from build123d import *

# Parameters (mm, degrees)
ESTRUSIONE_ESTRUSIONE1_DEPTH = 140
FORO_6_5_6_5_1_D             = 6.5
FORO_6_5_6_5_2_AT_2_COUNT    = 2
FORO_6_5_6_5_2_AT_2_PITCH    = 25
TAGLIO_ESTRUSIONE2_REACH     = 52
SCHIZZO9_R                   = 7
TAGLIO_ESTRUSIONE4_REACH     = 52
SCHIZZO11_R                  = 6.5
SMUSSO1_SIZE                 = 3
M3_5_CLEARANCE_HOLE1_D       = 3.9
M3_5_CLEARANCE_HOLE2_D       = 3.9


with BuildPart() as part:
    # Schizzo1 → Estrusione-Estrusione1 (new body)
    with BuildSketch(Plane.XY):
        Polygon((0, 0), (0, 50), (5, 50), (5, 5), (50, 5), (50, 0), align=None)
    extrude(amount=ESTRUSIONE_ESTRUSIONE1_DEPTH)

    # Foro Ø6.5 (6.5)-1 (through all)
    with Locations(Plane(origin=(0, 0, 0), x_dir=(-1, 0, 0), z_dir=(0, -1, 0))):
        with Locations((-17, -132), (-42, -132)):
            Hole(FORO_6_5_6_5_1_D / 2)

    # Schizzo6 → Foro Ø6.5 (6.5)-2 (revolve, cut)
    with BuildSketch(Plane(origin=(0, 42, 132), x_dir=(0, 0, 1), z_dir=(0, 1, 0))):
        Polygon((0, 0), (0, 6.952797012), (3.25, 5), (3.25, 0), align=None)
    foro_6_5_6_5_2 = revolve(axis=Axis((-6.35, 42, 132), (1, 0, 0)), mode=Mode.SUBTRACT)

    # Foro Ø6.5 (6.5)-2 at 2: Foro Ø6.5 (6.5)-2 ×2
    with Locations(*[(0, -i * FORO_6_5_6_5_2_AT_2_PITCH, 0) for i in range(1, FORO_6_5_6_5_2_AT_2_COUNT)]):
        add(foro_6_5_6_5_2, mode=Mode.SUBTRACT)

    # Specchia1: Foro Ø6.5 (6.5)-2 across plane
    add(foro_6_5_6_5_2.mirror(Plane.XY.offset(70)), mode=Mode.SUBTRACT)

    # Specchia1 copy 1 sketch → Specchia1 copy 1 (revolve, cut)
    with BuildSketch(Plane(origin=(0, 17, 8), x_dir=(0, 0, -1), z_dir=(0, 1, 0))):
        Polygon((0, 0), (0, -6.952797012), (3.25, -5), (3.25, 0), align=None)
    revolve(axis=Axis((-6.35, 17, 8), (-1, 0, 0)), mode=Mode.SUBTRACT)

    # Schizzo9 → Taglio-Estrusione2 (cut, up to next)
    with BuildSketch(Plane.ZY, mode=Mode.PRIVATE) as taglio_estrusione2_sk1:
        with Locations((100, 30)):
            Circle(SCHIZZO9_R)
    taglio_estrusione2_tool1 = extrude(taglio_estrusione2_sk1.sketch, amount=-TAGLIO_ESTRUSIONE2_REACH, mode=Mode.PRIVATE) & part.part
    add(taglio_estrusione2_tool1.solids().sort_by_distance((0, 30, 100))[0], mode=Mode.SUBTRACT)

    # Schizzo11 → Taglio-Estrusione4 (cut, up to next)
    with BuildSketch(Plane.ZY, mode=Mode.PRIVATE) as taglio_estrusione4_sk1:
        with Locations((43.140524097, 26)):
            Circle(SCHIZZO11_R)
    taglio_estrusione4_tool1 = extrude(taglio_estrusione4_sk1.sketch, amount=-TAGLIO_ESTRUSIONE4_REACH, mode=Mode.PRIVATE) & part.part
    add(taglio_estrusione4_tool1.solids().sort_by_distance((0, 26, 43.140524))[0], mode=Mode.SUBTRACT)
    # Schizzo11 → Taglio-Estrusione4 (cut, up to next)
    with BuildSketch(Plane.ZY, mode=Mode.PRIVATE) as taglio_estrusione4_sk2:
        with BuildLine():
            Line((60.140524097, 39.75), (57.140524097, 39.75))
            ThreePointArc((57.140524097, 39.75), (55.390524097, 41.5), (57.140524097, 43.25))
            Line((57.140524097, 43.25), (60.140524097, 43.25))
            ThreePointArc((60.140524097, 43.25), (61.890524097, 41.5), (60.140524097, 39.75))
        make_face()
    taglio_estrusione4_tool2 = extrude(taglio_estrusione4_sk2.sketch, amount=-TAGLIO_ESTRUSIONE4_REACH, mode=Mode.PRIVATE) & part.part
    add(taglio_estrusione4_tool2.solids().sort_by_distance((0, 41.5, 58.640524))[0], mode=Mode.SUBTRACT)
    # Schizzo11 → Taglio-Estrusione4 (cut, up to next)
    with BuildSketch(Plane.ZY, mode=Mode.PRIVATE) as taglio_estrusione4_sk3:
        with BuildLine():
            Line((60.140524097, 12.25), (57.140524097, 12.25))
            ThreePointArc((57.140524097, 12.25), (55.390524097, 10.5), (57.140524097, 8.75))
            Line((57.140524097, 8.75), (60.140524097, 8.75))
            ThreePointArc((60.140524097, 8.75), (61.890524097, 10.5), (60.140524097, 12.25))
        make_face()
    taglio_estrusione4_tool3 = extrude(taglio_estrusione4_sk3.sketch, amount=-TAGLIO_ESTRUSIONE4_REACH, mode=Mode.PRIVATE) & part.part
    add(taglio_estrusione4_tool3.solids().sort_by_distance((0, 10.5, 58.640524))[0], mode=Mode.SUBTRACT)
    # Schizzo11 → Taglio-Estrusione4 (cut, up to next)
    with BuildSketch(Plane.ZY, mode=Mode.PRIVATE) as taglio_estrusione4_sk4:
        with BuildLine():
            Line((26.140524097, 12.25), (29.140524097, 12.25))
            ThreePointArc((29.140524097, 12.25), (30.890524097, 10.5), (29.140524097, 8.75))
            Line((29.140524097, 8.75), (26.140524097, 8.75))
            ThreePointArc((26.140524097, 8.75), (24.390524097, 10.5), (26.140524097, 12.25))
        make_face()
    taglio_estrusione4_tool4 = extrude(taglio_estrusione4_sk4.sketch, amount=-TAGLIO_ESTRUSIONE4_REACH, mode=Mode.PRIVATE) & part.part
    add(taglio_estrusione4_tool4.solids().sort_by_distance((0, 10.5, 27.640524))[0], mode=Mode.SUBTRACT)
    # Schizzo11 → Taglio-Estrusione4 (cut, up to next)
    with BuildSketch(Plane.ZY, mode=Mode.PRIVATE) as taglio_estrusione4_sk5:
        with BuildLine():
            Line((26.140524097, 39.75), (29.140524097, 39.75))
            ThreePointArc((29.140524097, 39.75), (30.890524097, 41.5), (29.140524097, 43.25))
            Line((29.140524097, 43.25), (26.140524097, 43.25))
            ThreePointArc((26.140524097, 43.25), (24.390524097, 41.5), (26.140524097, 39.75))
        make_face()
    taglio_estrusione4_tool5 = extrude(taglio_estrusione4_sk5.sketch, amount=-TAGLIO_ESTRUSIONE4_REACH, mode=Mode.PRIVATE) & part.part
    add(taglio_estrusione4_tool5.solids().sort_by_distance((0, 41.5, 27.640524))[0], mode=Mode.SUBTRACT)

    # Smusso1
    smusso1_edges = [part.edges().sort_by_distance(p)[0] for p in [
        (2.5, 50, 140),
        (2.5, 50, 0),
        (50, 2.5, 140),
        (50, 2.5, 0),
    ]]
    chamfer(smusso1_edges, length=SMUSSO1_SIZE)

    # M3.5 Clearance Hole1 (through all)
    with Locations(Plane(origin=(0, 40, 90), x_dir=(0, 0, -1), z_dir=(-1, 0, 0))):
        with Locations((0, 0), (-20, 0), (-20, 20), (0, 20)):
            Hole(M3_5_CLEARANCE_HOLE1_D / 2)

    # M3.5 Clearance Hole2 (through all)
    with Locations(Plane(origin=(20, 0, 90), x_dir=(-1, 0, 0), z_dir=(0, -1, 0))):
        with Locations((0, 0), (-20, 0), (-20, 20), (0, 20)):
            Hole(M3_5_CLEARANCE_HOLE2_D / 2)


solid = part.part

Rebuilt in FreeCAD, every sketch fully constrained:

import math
import FreeCAD as App
import Part
import Sketcher
Q = App.Units.Quantity


def edges_at(feature, points):
    """Names of the edges that pass closest to the given points."""
    edges = feature.Shape.Edges
    near = lambda p: min(range(len(edges)), key=lambda i: edges[i].distToShape(Part.Vertex(*p))[0])
    return sorted({f"Edge{near(p) + 1}" for p in points})

doc = App.newDocument("Part")
body = doc.addObject("PartDesign::Body", "Body")

sketch1 = body.newObject("Sketcher::SketchObject", "Sketch")
sketch1.AttachmentSupport = (doc.getObject("XY_Plane"), [""])
sketch1.MapMode = "FlatFace"
sketch1.addGeometry(Part.LineSegment(App.Vector(0, 50, 0), App.Vector(0, 0, 0)), False)
sketch1.addGeometry(Part.LineSegment(App.Vector(0, 0, 0), App.Vector(50, 0, 0)), False)
sketch1.addGeometry(Part.LineSegment(App.Vector(50, 0, 0), App.Vector(50, 5, 0)), False)
sketch1.addGeometry(Part.LineSegment(App.Vector(50, 5, 0), App.Vector(5, 5, 0)), False)
sketch1.addGeometry(Part.LineSegment(App.Vector(5, 5, 0), App.Vector(5, 50, 0)), False)
sketch1.addGeometry(Part.LineSegment(App.Vector(5, 50, 0), App.Vector(0, 50, 0)), False)
sketch1.addConstraint(Sketcher.Constraint("Coincident", 0, 2, 1, 1))
sketch1.addConstraint(Sketcher.Constraint("Coincident", 1, 2, 2, 1))
sketch1.addConstraint(Sketcher.Constraint("Coincident", 2, 2, 3, 1))
sketch1.addConstraint(Sketcher.Constraint("Coincident", 3, 2, 4, 1))
sketch1.addConstraint(Sketcher.Constraint("Coincident", 4, 2, 5, 1))
sketch1.addConstraint(Sketcher.Constraint("Coincident", 5, 2, 0, 1))
sketch1.addConstraint(Sketcher.Constraint("Vertical", 0))
sketch1.addConstraint(Sketcher.Constraint("Horizontal", 1))
sketch1.addConstraint(Sketcher.Constraint("Vertical", 2))
sketch1.addConstraint(Sketcher.Constraint("Horizontal", 3))
sketch1.addConstraint(Sketcher.Constraint("Vertical", 4))
sketch1.addConstraint(Sketcher.Constraint("Horizontal", 5))
sketch1.addConstraint(Sketcher.Constraint("Coincident", 0, 2, -1, 1))
sketch1.addConstraint(Sketcher.Constraint("Equal", 1, 0))
sketch1.addConstraint(Sketcher.Constraint("Equal", 5, 2))
sketch1.addConstraint(Sketcher.Constraint("DistanceX", 1, 1, 1, 2, Q("50 mm")))
sketch1.addConstraint(Sketcher.Constraint("DistanceX", 3, 2, 3, 1, Q("45 mm")))
pad1 = body.newObject("PartDesign::Pad", "Pad")
pad1.Profile = sketch1
pad1.Length = 140

sketch2 = body.newObject("Sketcher::SketchObject", "Sketch001")
sketch2.AttachmentSupport = (doc.getObject("XZ_Plane"), [""])
sketch2.MapMode = "FlatFace"
sketch2.addGeometry(Part.Circle(App.Vector(17, 132, 0), App.Vector(0, 0, 1), 3.2), False)
sketch2.addGeometry(Part.Circle(App.Vector(42, 132, 0), App.Vector(0, 0, 1), 3.2), False)
sketch2.addConstraint(Sketcher.Constraint("Equal", 0, 1))
sketch2.addConstraint(Sketcher.Constraint("Horizontal", 0, 3, 1, 3))
sketch2.addConstraint(Sketcher.Constraint("Diameter", 0, Q("6.5 mm")))
sketch2.addConstraint(Sketcher.Constraint("DistanceX", -1, 1, 0, 3, Q("17 mm")))
sketch2.addConstraint(Sketcher.Constraint("DistanceY", -1, 1, 0, 3, Q("132 mm")))
sketch2.addConstraint(Sketcher.Constraint("DistanceX", -1, 1, 1, 3, Q("42 mm")))
doc.recompute()
hole = body.newObject("PartDesign::Hole", "Hole")
hole.Profile = sketch2
hole.ThreadType = "None"
hole.Diameter = 6.5
hole.DepthType = "ThroughAll"

sketch3 = body.newObject("Sketcher::SketchObject", "Sketch002")
sketch3.AttachmentSupport = (doc.getObject("XZ_Plane"), [""])
sketch3.MapMode = "FlatFace"
sketch3.AttachmentOffset = App.Placement(App.Vector(0, 0, -42), App.Rotation())
sketch3.addGeometry(Part.LineSegment(App.Vector(7, 132, 0), App.Vector(0, 132, 0)), False)
sketch3.addGeometry(Part.LineSegment(App.Vector(0, 132, 0), App.Vector(0, 135.2, 0)), False)
sketch3.addGeometry(Part.LineSegment(App.Vector(0, 135.2, 0), App.Vector(5, 135.2, 0)), False)
sketch3.addGeometry(Part.LineSegment(App.Vector(5, 135.2, 0), App.Vector(7, 132, 0)), False)
sketch3.addGeometry(Part.LineSegment(App.Vector(0, 132, 0), App.Vector(7, 132, 0)), True)
sketch3.addConstraint(Sketcher.Constraint("Coincident", 0, 2, 1, 1))
sketch3.addConstraint(Sketcher.Constraint("Coincident", 1, 2, 2, 1))
sketch3.addConstraint(Sketcher.Constraint("Coincident", 2, 2, 3, 1))
sketch3.addConstraint(Sketcher.Constraint("Coincident", 3, 2, 0, 1))
sketch3.addConstraint(Sketcher.Constraint("Horizontal", 0))
sketch3.addConstraint(Sketcher.Constraint("Vertical", 1))
sketch3.addConstraint(Sketcher.Constraint("Horizontal", 2))
sketch3.addConstraint(Sketcher.Constraint("Horizontal", 4))
sketch3.addConstraint(Sketcher.Constraint("Coincident", 4, 1, 0, 2))
sketch3.addConstraint(Sketcher.Constraint("PointOnObject", 0, 2, -2))
sketch3.addConstraint(Sketcher.Constraint("Equal", 0, 4))
sketch3.addConstraint(Sketcher.Constraint("DistanceX", 2, 1, 2, 2, Q("5 mm")))
sketch3.addConstraint(Sketcher.Constraint("Angle", 3, Q("-59 deg")))
sketch3.addConstraint(Sketcher.Constraint("DistanceY", -1, 1, 0, 2, Q("132 mm")))
sketch3.addConstraint(Sketcher.Constraint("DistanceY", 1, 1, 1, 2, Q("3.25 mm")))
groove = body.newObject("PartDesign::Groove", "Groove")
groove.Profile = sketch3
groove.ReferenceAxis = (sketch3, ["Axis0"])
groove.Angle = 360
doc.recompute()

linearpattern = body.newObject("PartDesign::LinearPattern", "LinearPattern")
linearpattern.Originals = [groove]
linearpattern.Direction = (doc.getObject("Y_Axis"), [""])
linearpattern.Mode = "offset"
linearpattern.Offset = 25
linearpattern.Occurrences = 2
linearpattern.Reversed = True
body.Tip = linearpattern
doc.recompute()

datumplane = body.newObject("PartDesign::Plane", "DatumPlane")
datumplane.AttachmentSupport = (doc.getObject("XY_Plane"), [""])
datumplane.MapMode = "FlatFace"
datumplane.AttachmentOffset = App.Placement(App.Vector(0, 0, 70), App.Rotation())
mirrored = body.newObject("PartDesign::Mirrored", "Mirrored")
mirrored.Originals = [groove]
mirrored.MirrorPlane = (datumplane, [""])
body.Tip = mirrored

sketch4 = body.newObject("Sketcher::SketchObject", "Sketch003")
sketch4.AttachmentSupport = (doc.getObject("XZ_Plane"), [""])
sketch4.MapMode = "FlatFace"
sketch4.AttachmentOffset = App.Placement(App.Vector(0, 0, -17), App.Rotation())
sketch4.addGeometry(Part.LineSegment(App.Vector(0, 8, 0), App.Vector(7, 8, 0)), False)
sketch4.addGeometry(Part.LineSegment(App.Vector(7, 8, 0), App.Vector(5, 4.8, 0)), False)
sketch4.addGeometry(Part.LineSegment(App.Vector(5, 4.8, 0), App.Vector(0, 4.8, 0)), False)
sketch4.addGeometry(Part.LineSegment(App.Vector(0, 4.8, 0), App.Vector(0, 8, 0)), False)
sketch4.addGeometry(Part.LineSegment(App.Vector(7, 8, 0), App.Vector(0, 8, 0)), True)
sketch4.addConstraint(Sketcher.Constraint("Coincident", 0, 2, 1, 1))
sketch4.addConstraint(Sketcher.Constraint("Coincident", 1, 2, 2, 1))
sketch4.addConstraint(Sketcher.Constraint("Coincident", 2, 2, 3, 1))
sketch4.addConstraint(Sketcher.Constraint("Coincident", 3, 2, 0, 1))
sketch4.addConstraint(Sketcher.Constraint("Horizontal", 0))
sketch4.addConstraint(Sketcher.Constraint("Horizontal", 2))
sketch4.addConstraint(Sketcher.Constraint("Vertical", 3))
sketch4.addConstraint(Sketcher.Constraint("Horizontal", 4))
sketch4.addConstraint(Sketcher.Constraint("Coincident", 4, 1, 0, 2))
sketch4.addConstraint(Sketcher.Constraint("PointOnObject", 2, 2, -2))
sketch4.addConstraint(Sketcher.Constraint("PointOnObject", 4, 2, -2))
sketch4.addConstraint(Sketcher.Constraint("DistanceX", 2, 2, 2, 1, Q("5 mm")))
sketch4.addConstraint(Sketcher.Constraint("Angle", 1, Q("-121 deg")))
sketch4.addConstraint(Sketcher.Constraint("DistanceY", -1, 1, 0, 2, Q("8 mm")))
sketch4.addConstraint(Sketcher.Constraint("DistanceY", 3, 1, 3, 2, Q("3.25 mm")))
groove2 = body.newObject("PartDesign::Groove", "Groove001")
groove2.Profile = sketch4
groove2.ReferenceAxis = (sketch4, ["Axis0"])
groove2.Angle = 360

sketch5 = body.newObject("Sketcher::SketchObject", "Sketch004")
sketch5.AttachmentSupport = (doc.getObject("YZ_Plane"), [""])
sketch5.MapMode = "FlatFace"
sketch5.addGeometry(Part.Circle(App.Vector(30, 100, 0), App.Vector(0, 0, 1), 7), False)
sketch5.addConstraint(Sketcher.Constraint("Diameter", 0, Q("14 mm")))
sketch5.addConstraint(Sketcher.Constraint("DistanceX", -1, 1, 0, 3, Q("30 mm")))
sketch5.addConstraint(Sketcher.Constraint("DistanceY", -1, 1, 0, 3, Q("100 mm")))
pocket1 = body.newObject("PartDesign::Pocket", "Pocket")
pocket1.Profile = sketch5
pocket1.Type = "UpToFirst"
pocket1.Reversed = True

sketch6 = body.newObject("Sketcher::SketchObject", "Sketch005")
sketch6.AttachmentSupport = (doc.getObject("YZ_Plane"), [""])
sketch6.MapMode = "FlatFace"
sketch6.addGeometry(Part.Circle(App.Vector(26, 43, 0), App.Vector(0, 0, 1), 6), False)
sketch6.addConstraint(Sketcher.Constraint("Diameter", 0, Q("13 mm")))
sketch6.addConstraint(Sketcher.Constraint("DistanceX", -1, 1, 0, 3, Q("26 mm")))
sketch6.addConstraint(Sketcher.Constraint("DistanceY", -1, 1, 0, 3, Q("43.140524 mm")))
pocket2 = body.newObject("PartDesign::Pocket", "Pocket001")
pocket2.Profile = sketch6
pocket2.Type = "UpToFirst"
pocket2.Reversed = True

sketch7 = body.newObject("Sketcher::SketchObject", "Sketch006")
sketch7.AttachmentSupport = (doc.getObject("YZ_Plane"), [""])
sketch7.MapMode = "FlatFace"
sketch7.addGeometry(Part.LineSegment(App.Vector(39.8, 57.1, 0), App.Vector(39.8, 60.1, 0)), False)
sketch7.addGeometry(Part.ArcOfCircle(Part.Circle(App.Vector(41.5, 60.1, 0), App.Vector(0, 0, 1), 1.8), math.radians(0), math.radians(180)), False)
sketch7.addGeometry(Part.LineSegment(App.Vector(43.2, 60.1, 0), App.Vector(43.2, 57.1, 0)), False)
sketch7.addGeometry(Part.ArcOfCircle(Part.Circle(App.Vector(41.5, 57.1, 0), App.Vector(0, 0, 1), 1.8), math.radians(180), math.radians(360)), False)
sketch7.addConstraint(Sketcher.Constraint("Tangent", 0, 2, 1, 2))
sketch7.addConstraint(Sketcher.Constraint("Tangent", 1, 1, 2, 1))
sketch7.addConstraint(Sketcher.Constraint("Tangent", 2, 2, 3, 2))
sketch7.addConstraint(Sketcher.Constraint("Tangent", 3, 1, 0, 1))
sketch7.addConstraint(Sketcher.Constraint("Vertical", 0))
sketch7.addConstraint(Sketcher.Constraint("Vertical", 2))
sketch7.addConstraint(Sketcher.Constraint("DistanceY", 0, 1, 0, 2, Q("3 mm")))
sketch7.addConstraint(Sketcher.Constraint("Radius", 1, Q("1.75 mm")))
sketch7.addConstraint(Sketcher.Constraint("DistanceX", -1, 1, 1, 3, Q("41.5 mm")))
sketch7.addConstraint(Sketcher.Constraint("DistanceY", -1, 1, 1, 3, Q("60.140524 mm")))
pocket3 = body.newObject("PartDesign::Pocket", "Pocket002")
pocket3.Profile = sketch7
pocket3.Type = "UpToFirst"
pocket3.Reversed = True

sketch8 = body.newObject("Sketcher::SketchObject", "Sketch007")
sketch8.AttachmentSupport = (doc.getObject("YZ_Plane"), [""])
sketch8.MapMode = "FlatFace"
sketch8.addGeometry(Part.LineSegment(App.Vector(12.2, 60.1, 0), App.Vector(12.2, 57.1, 0)), False)
sketch8.addGeometry(Part.ArcOfCircle(Part.Circle(App.Vector(10.5, 57.1, 0), App.Vector(0, 0, 1), 1.8), math.radians(180), math.radians(360)), False)
sketch8.addGeometry(Part.LineSegment(App.Vector(8.8, 57.1, 0), App.Vector(8.8, 60.1, 0)), False)
sketch8.addGeometry(Part.ArcOfCircle(Part.Circle(App.Vector(10.5, 60.1, 0), App.Vector(0, 0, 1), 1.8), math.radians(0), math.radians(180)), False)
sketch8.addConstraint(Sketcher.Constraint("Tangent", 0, 2, 1, 2))
sketch8.addConstraint(Sketcher.Constraint("Tangent", 1, 1, 2, 1))
sketch8.addConstraint(Sketcher.Constraint("Tangent", 2, 2, 3, 2))
sketch8.addConstraint(Sketcher.Constraint("Tangent", 3, 1, 0, 1))
sketch8.addConstraint(Sketcher.Constraint("Vertical", 0))
sketch8.addConstraint(Sketcher.Constraint("Vertical", 2))
sketch8.addConstraint(Sketcher.Constraint("DistanceY", 0, 2, 0, 1, Q("3 mm")))
sketch8.addConstraint(Sketcher.Constraint("Radius", 1, Q("1.75 mm")))
sketch8.addConstraint(Sketcher.Constraint("DistanceX", -1, 1, 1, 3, Q("10.5 mm")))
sketch8.addConstraint(Sketcher.Constraint("DistanceY", -1, 1, 1, 3, Q("57.140524 mm")))
pocket4 = body.newObject("PartDesign::Pocket", "Pocket003")
pocket4.Profile = sketch8
pocket4.Type = "UpToFirst"
pocket4.Reversed = True

sketch9 = body.newObject("Sketcher::SketchObject", "Sketch008")
sketch9.AttachmentSupport = (doc.getObject("YZ_Plane"), [""])
sketch9.MapMode = "FlatFace"
sketch9.addGeometry(Part.LineSegment(App.Vector(12.2, 29.1, 0), App.Vector(12.2, 26.1, 0)), False)
sketch9.addGeometry(Part.ArcOfCircle(Part.Circle(App.Vector(10.5, 26.1, 0), App.Vector(0, 0, 1), 1.8), math.radians(180), math.radians(360)), False)
sketch9.addGeometry(Part.LineSegment(App.Vector(8.8, 26.1, 0), App.Vector(8.8, 29.1, 0)), False)
sketch9.addGeometry(Part.ArcOfCircle(Part.Circle(App.Vector(10.5, 29.1, 0), App.Vector(0, 0, 1), 1.8), math.radians(0), math.radians(180)), False)
sketch9.addConstraint(Sketcher.Constraint("Tangent", 0, 2, 1, 2))
sketch9.addConstraint(Sketcher.Constraint("Tangent", 1, 1, 2, 1))
sketch9.addConstraint(Sketcher.Constraint("Tangent", 2, 2, 3, 2))
sketch9.addConstraint(Sketcher.Constraint("Tangent", 3, 1, 0, 1))
sketch9.addConstraint(Sketcher.Constraint("Vertical", 0))
sketch9.addConstraint(Sketcher.Constraint("Vertical", 2))
sketch9.addConstraint(Sketcher.Constraint("DistanceY", 0, 2, 0, 1, Q("3 mm")))
sketch9.addConstraint(Sketcher.Constraint("Radius", 1, Q("1.75 mm")))
sketch9.addConstraint(Sketcher.Constraint("DistanceX", -1, 1, 1, 3, Q("10.5 mm")))
sketch9.addConstraint(Sketcher.Constraint("DistanceY", -1, 1, 1, 3, Q("26.140524 mm")))
pocket5 = body.newObject("PartDesign::Pocket", "Pocket004")
pocket5.Profile = sketch9
pocket5.Type = "UpToFirst"
pocket5.Reversed = True

sketch10 = body.newObject("Sketcher::SketchObject", "Sketch009")
sketch10.AttachmentSupport = (doc.getObject("YZ_Plane"), [""])
sketch10.MapMode = "FlatFace"
sketch10.addGeometry(Part.LineSegment(App.Vector(39.8, 26.1, 0), App.Vector(39.8, 29.1, 0)), False)
sketch10.addGeometry(Part.ArcOfCircle(Part.Circle(App.Vector(41.5, 29.1, 0), App.Vector(0, 0, 1), 1.8), math.radians(0), math.radians(180)), False)
sketch10.addGeometry(Part.LineSegment(App.Vector(43.2, 29.1, 0), App.Vector(43.2, 26.1, 0)), False)
sketch10.addGeometry(Part.ArcOfCircle(Part.Circle(App.Vector(41.5, 26.1, 0), App.Vector(0, 0, 1), 1.8), math.radians(180), math.radians(360)), False)
sketch10.addConstraint(Sketcher.Constraint("Tangent", 0, 2, 1, 2))
sketch10.addConstraint(Sketcher.Constraint("Tangent", 1, 1, 2, 1))
sketch10.addConstraint(Sketcher.Constraint("Tangent", 2, 2, 3, 2))
sketch10.addConstraint(Sketcher.Constraint("Tangent", 3, 1, 0, 1))
sketch10.addConstraint(Sketcher.Constraint("Vertical", 0))
sketch10.addConstraint(Sketcher.Constraint("Vertical", 2))
sketch10.addConstraint(Sketcher.Constraint("DistanceY", 0, 1, 0, 2, Q("3 mm")))
sketch10.addConstraint(Sketcher.Constraint("Radius", 1, Q("1.75 mm")))
sketch10.addConstraint(Sketcher.Constraint("DistanceX", -1, 1, 1, 3, Q("41.5 mm")))
sketch10.addConstraint(Sketcher.Constraint("DistanceY", -1, 1, 1, 3, Q("29.140524 mm")))
pocket6 = body.newObject("PartDesign::Pocket", "Pocket005")
pocket6.Profile = sketch10
pocket6.Type = "UpToFirst"
pocket6.Reversed = True
doc.recompute()

chamfer = body.newObject("PartDesign::Chamfer", "Chamfer")
chamfer.Base = (pocket6, edges_at(pocket6, [
    (2.5, 50, 140),
    (2.5, 50, 0),
    (50, 2.5, 140),
    (50, 2.5, 0),
]))
chamfer.Size = 3

sketch11 = body.newObject("Sketcher::SketchObject", "Sketch010")
sketch11.AttachmentSupport = (doc.getObject("YZ_Plane"), [""])
sketch11.MapMode = "FlatFace"
sketch11.addGeometry(Part.Circle(App.Vector(40, 90, 0), App.Vector(0, 0, 1), 1.9), False)
sketch11.addGeometry(Part.Circle(App.Vector(40, 110, 0), App.Vector(0, 0, 1), 1.9), False)
sketch11.addGeometry(Part.Circle(App.Vector(20, 110, 0), App.Vector(0, 0, 1), 1.9), False)
sketch11.addGeometry(Part.Circle(App.Vector(20, 90, 0), App.Vector(0, 0, 1), 1.9), False)
sketch11.addConstraint(Sketcher.Constraint("Equal", 0, 1))
sketch11.addConstraint(Sketcher.Constraint("Equal", 1, 2))
sketch11.addConstraint(Sketcher.Constraint("Equal", 2, 3))
sketch11.addConstraint(Sketcher.Constraint("Horizontal", 1, 3, 2, 3))
sketch11.addConstraint(Sketcher.Constraint("Horizontal", 0, 3, 3, 3))
sketch11.addConstraint(Sketcher.Constraint("Vertical", 0, 3, 1, 3))
sketch11.addConstraint(Sketcher.Constraint("Vertical", 2, 3, 3, 3))
sketch11.addConstraint(Sketcher.Constraint("Diameter", 0, Q("3.9 mm")))
sketch11.addConstraint(Sketcher.Constraint("DistanceX", -1, 1, 0, 3, Q("40 mm")))
sketch11.addConstraint(Sketcher.Constraint("DistanceY", -1, 1, 0, 3, Q("90 mm")))
sketch11.addConstraint(Sketcher.Constraint("DistanceY", -1, 1, 1, 3, Q("110 mm")))
sketch11.addConstraint(Sketcher.Constraint("DistanceX", -1, 1, 2, 3, Q("20 mm")))
doc.recompute()
hole2 = body.newObject("PartDesign::Hole", "Hole001")
hole2.Profile = sketch11
hole2.ThreadType = "None"
hole2.Diameter = 3.9
hole2.DepthType = "ThroughAll"
hole2.Reversed = True

sketch12 = body.newObject("Sketcher::SketchObject", "Sketch011")
sketch12.AttachmentSupport = (doc.getObject("XZ_Plane"), [""])
sketch12.MapMode = "FlatFace"
sketch12.addGeometry(Part.Circle(App.Vector(20, 90, 0), App.Vector(0, 0, 1), 1.9), False)
sketch12.addGeometry(Part.Circle(App.Vector(40, 90, 0), App.Vector(0, 0, 1), 1.9), False)
sketch12.addGeometry(Part.Circle(App.Vector(40, 70, 0), App.Vector(0, 0, 1), 1.9), False)
sketch12.addGeometry(Part.Circle(App.Vector(20, 70, 0), App.Vector(0, 0, 1), 1.9), False)
sketch12.addConstraint(Sketcher.Constraint("Equal", 0, 1))
sketch12.addConstraint(Sketcher.Constraint("Equal", 1, 2))
sketch12.addConstraint(Sketcher.Constraint("Equal", 2, 3))
sketch12.addConstraint(Sketcher.Constraint("Horizontal", 0, 3, 1, 3))
sketch12.addConstraint(Sketcher.Constraint("Horizontal", 2, 3, 3, 3))
sketch12.addConstraint(Sketcher.Constraint("Vertical", 1, 3, 2, 3))
sketch12.addConstraint(Sketcher.Constraint("Vertical", 0, 3, 3, 3))
sketch12.addConstraint(Sketcher.Constraint("Diameter", 0, Q("3.9 mm")))
sketch12.addConstraint(Sketcher.Constraint("DistanceX", -1, 1, 0, 3, Q("20 mm")))
sketch12.addConstraint(Sketcher.Constraint("DistanceY", -1, 1, 0, 3, Q("90 mm")))
sketch12.addConstraint(Sketcher.Constraint("DistanceX", -1, 1, 1, 3, Q("40 mm")))
sketch12.addConstraint(Sketcher.Constraint("DistanceY", -1, 1, 2, 3, Q("70 mm")))
doc.recompute()
hole3 = body.newObject("PartDesign::Hole", "Hole002")
hole3.Profile = sketch12
hole3.ThreadType = "None"
hole3.Diameter = 3.9
hole3.DepthType = "ThroughAll"

doc.recompute()
